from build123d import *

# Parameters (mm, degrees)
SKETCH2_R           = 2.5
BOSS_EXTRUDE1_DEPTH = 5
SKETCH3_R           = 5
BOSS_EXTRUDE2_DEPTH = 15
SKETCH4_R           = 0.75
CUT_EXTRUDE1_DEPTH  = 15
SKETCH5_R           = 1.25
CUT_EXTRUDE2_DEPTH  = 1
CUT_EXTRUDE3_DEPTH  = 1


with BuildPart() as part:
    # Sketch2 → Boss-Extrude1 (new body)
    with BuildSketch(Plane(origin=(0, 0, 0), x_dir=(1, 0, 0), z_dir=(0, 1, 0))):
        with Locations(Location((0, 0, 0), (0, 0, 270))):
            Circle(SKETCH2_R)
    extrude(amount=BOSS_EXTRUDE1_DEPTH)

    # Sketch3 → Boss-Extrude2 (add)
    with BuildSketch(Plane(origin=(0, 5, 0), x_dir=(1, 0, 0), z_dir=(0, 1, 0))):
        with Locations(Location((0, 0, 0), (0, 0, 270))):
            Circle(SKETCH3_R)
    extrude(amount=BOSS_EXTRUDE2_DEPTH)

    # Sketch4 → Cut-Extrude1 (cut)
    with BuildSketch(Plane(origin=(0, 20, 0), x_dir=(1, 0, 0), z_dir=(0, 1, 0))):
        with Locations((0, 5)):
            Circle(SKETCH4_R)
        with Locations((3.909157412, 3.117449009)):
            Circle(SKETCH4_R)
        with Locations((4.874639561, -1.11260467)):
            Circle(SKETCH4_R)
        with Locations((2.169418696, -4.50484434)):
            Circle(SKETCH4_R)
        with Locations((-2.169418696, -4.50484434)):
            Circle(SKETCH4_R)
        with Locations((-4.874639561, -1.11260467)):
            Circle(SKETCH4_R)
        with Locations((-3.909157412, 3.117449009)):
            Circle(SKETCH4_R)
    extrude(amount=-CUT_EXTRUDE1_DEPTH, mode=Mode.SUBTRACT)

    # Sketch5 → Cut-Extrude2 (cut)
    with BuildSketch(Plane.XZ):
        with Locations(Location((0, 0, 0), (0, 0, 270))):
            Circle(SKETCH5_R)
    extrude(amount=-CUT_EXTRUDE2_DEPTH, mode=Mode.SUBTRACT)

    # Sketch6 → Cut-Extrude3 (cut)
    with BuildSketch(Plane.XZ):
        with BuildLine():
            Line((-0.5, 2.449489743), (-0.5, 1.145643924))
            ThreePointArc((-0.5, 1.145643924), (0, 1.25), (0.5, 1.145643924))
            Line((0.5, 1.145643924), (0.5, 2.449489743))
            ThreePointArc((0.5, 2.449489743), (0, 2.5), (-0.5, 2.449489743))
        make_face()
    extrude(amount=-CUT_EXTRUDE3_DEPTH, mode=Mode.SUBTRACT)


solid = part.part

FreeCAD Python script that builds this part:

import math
import FreeCAD as App
import Part
import Sketcher
from FreeCAD import Vector

doc = App.newDocument("Part")
params = doc.addObject("Spreadsheet::Sheet", "Params")
for row, (alias, value) in enumerate([
    ("sketch1_diameter", "5 mm"),
    ("pad1_length", "5 mm"),
    ("sketch2_diameter", "10 mm"),
    ("pad2_length", "15 mm"),
    ("sketch3_diameter", "1.5 mm"),
    ("pocket1_length", "15 mm"),
    ("sketch4_diameter", "2.5 mm"),
    ("pocket2_length", "1 mm"),
    ("sketch5_radius", "2.5 mm"),
    ("sketch5_radius2", "1.25 mm"),
    ("pocket3_length", "1 mm"),
], start=1):
    params.set(f"A{row}", alias)
    params.set(f"B{row}", "=" + value)
    params.setAlias(f"B{row}", alias)

body = doc.addObject("PartDesign::Body", "Body")

# Sketch on XZ plane
sketch1 = body.newObject("Sketcher::SketchObject", "Sketch")
sketch1.AttachmentSupport = (doc.getObject("XZ_Plane"), [""])
sketch1.MapMode = "FlatFace"
sketch1.addGeometry(Part.Circle(Vector(0, 0, 0), Vector(0, 0, 1), 2.5), False)
sketch1.addConstraint([
    Sketcher.Constraint("Coincident", 0, 3, -1, 1),
    Sketcher.Constraint("Diameter", 0, 5.0),
])
sketch1.setExpression("Constraints[1]", "Params.sketch1_diameter")
pad1 = body.newObject("PartDesign::Pad", "Pad")
pad1.Profile = sketch1
pad1.setExpression("Length", "Params.pad1_length")
pad1.Reversed = True

# Sketch on XZ plane
sketch2 = body.newObject("Sketcher::SketchObject", "Sketch001")
sketch2.AttachmentSupport = (doc.getObject("XZ_Plane"), [""])
sketch2.MapMode = "FlatFace"
sketch2.AttachmentOffset = App.Placement(Vector(0, 0, -5), App.Rotation())
sketch2.addGeometry(Part.Circle(Vector(0, 0, 0), Vector(0, 0, 1), 5), False)
sketch2.addConstraint([
    Sketcher.Constraint("Coincident", 0, 3, -1, 1),
    Sketcher.Constraint("Diameter", 0, 10.0),
])
sketch2.setExpression("Constraints[1]", "Params.sketch2_diameter")
pad2 = body.newObject("PartDesign::Pad", "Pad001")
pad2.Profile = sketch2
pad2.setExpression("Length", "Params.pad2_length")
pad2.Reversed = True

# Sketch on XZ plane
sketch3 = body.newObject("Sketcher::SketchObject", "Sketch002")
sketch3.AttachmentSupport = (doc.getObject("XZ_Plane"), [""])
sketch3.MapMode = "FlatFace"
sketch3.AttachmentOffset = App.Placement(Vector(0, 0, -20), App.Rotation())
sketch3.addGeometry([
    Part.Circle(Vector(0, -5, 0), Vector(0, 0, 1), 0.8),  # 0
    Part.Circle(Vector(3.9, -3.1, 0), Vector(0, 0, 1), 0.8),  # 1
    Part.Circle(Vector(4.9, 1.1, 0), Vector(0, 0, 1), 0.8),  # 2
    Part.Circle(Vector(2.2, 4.5, 0), Vector(0, 0, 1), 0.8),  # 3
    Part.Circle(Vector(-2.2, 4.5, 0), Vector(0, 0, 1), 0.8),  # 4
    Part.Circle(Vector(-4.9, 1.1, 0), Vector(0, 0, 1), 0.8),  # 5
    Part.Circle(Vector(-3.9, -3.1, 0), Vector(0, 0, 1), 0.8),  # 6
], False)
sketch3.addConstraint([
    Sketcher.Constraint("Equal", 0, 1),
    Sketcher.Constraint("Equal", 1, 2),
    Sketcher.Constraint("Equal", 2, 3),
    Sketcher.Constraint("Equal", 3, 4),
    Sketcher.Constraint("Equal", 4, 5),
    Sketcher.Constraint("Equal", 5, 6),
    Sketcher.Constraint("Symmetric", 3, 3, 4, 3, -2),
    Sketcher.Constraint("Symmetric", 2, 3, 5, 3, -2),
    Sketcher.Constraint("Symmetric", 1, 3, 6, 3, -2),
    Sketcher.Constraint("PointOnObject", 0, 3, -2),
    Sketcher.Constraint("Diameter", 0, 1.5),
    Sketcher.Constraint("DistanceY", 0, 3, -1, 1, 5.0),
    Sketcher.Constraint("DistanceY", 1, 3, -1, 1, 3.117449),
    Sketcher.Constraint("DistanceX", -1, 1, 2, 3, 4.87464),
    Sketcher.Constraint("DistanceX", -1, 1, 3, 3, 2.169419),
    Sketcher.Constraint("DistanceY", 2, 3, 3, 3, 3.39224),
    Sketcher.Constraint("DistanceX", 3, 3, 1, 3, 1.739739),
    Sketcher.Constraint("DistanceY", -1, 1, 2, 3, 1.112605),
])
sketch3.setExpression("Constraints[10]", "Params.sketch3_diameter")
pocket1 = body.newObject("PartDesign::Pocket", "Pocket")
pocket1.Profile = sketch3
pocket1.setExpression("Length", "Params.pocket1_length")
pocket1.Reversed = True

# Sketch on XZ plane
sketch4 = body.newObject("Sketcher::SketchObject", "Sketch003")
sketch4.AttachmentSupport = (doc.getObject("XZ_Plane"), [""])
sketch4.MapMode = "FlatFace"
sketch4.addGeometry(Part.Circle(Vector(0, 0, 0), Vector(0, 0, 1), 1.2), False)
sketch4.addConstraint([
    Sketcher.Constraint("Coincident", 0, 3, -1, 1),
    Sketcher.Constraint("Diameter", 0, 2.5),
])
sketch4.setExpression("Constraints[1]", "Params.sketch4_diameter")
pocket2 = body.newObject("PartDesign::Pocket", "Pocket001")
pocket2.Profile = sketch4
pocket2.setExpression("Length", "Params.pocket2_length")

# Sketch on XZ plane
sketch5 = body.newObject("Sketcher::SketchObject", "Sketch004")
sketch5.AttachmentSupport = (doc.getObject("XZ_Plane"), [""])
sketch5.MapMode = "FlatFace"
sketch5.addGeometry([
    Part.LineSegment(Vector(-0.5, 2.4, 0), Vector(-0.5, 1.1, 0)),
    Part.ArcOfCircle(Part.Circle(Vector(0, 0, 0), Vector(0, 0, 1), 1.3), math.radians(66), math.radians(114)),
    Part.LineSegment(Vector(0.5, 1.1, 0), Vector(0.5, 2.4, 0)),
    Part.ArcOfCircle(Part.Circle(Vector(0, 0, 0), Vector(0, 0, 1), 2.5), math.radians(78), math.radians(102)),
], False)
sketch5.addConstraint([
    Sketcher.Constraint("Coincident", 0, 2, 1, 2),
    Sketcher.Constraint("Coincident", 1, 1, 2, 1),
    Sketcher.Constraint("Coincident", 2, 2, 3, 1),
    Sketcher.Constraint("Coincident", 3, 2, 0, 1),
    Sketcher.Constraint("Vertical", 0),
    Sketcher.Constraint("Vertical", 2),
    Sketcher.Constraint("Coincident", 1, 3, -1, 1),
    Sketcher.Constraint("Coincident", 3, 3, -1, 1),
    Sketcher.Constraint("Horizontal", 0, 2, 1, 1),
    Sketcher.Constraint("Radius", 3, 2.5),
    Sketcher.Constraint("Radius", 1, 1.25),
    Sketcher.Constraint("DistanceX", 0, 2, 1, 1, 1.0),
])
sketch5.setExpression("Constraints[9]", "Params.sketch5_radius")
sketch5.setExpression("Constraints[10]", "Params.sketch5_radius2")
pocket3 = body.newObject("PartDesign::Pocket", "Pocket002")
pocket3.Profile = sketch5
pocket3.setExpression("Length", "Params.pocket3_length")

doc.recompute()
